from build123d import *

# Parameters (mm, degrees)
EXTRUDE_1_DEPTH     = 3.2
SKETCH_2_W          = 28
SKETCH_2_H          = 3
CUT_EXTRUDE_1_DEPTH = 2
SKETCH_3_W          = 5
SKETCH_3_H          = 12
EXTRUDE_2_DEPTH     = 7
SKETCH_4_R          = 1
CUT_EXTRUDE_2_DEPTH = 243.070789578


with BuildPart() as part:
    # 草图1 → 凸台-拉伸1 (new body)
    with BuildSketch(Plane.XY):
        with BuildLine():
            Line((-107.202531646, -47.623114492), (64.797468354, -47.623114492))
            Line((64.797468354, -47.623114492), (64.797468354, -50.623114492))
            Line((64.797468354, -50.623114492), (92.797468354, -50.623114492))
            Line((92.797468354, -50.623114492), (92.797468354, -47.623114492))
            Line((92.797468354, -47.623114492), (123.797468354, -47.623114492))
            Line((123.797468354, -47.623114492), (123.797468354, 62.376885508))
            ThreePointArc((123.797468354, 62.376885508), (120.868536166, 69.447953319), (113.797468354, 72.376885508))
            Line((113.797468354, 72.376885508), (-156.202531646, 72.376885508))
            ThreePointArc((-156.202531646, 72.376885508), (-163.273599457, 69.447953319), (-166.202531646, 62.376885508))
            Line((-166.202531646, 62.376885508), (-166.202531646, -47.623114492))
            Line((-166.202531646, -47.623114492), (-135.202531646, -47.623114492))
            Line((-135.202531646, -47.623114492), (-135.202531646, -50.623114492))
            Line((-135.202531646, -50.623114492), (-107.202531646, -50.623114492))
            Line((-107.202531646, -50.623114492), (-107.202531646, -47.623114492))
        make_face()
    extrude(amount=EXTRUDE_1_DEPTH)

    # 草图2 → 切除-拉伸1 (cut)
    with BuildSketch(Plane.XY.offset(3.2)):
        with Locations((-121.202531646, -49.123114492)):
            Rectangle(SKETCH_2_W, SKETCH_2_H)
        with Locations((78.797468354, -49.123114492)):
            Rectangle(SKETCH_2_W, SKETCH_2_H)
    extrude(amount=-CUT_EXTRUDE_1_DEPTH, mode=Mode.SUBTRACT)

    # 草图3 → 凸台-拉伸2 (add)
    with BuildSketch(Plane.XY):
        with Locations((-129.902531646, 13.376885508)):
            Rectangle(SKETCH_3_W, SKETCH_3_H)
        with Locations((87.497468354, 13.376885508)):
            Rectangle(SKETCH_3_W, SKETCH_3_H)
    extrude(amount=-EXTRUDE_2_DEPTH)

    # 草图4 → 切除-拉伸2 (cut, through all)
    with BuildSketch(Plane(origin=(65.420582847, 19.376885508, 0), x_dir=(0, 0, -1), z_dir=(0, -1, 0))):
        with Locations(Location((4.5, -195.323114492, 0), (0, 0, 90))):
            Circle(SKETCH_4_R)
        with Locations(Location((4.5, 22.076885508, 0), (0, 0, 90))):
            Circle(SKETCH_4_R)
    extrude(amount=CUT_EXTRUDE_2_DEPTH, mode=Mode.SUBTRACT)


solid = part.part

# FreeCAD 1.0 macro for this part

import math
import FreeCAD as App
import Part
import Sketcher

V = App.Vector
Q = App.Units.Quantity

doc = App.newDocument("Part")
body = doc.addObject("PartDesign::Body", "Body")

# Sketch on XY plane
sketch1 = body.newObject("Sketcher::SketchObject", "Sketch")
sketch1.AttachmentSupport = (doc.getObject("XY_Plane"), [""])
sketch1.MapMode = "FlatFace"
sketch1.addGeometry([
    Part.LineSegment(V(-107.2, -47.6, 0), V(64.8, -47.6, 0)),  # 0
    Part.LineSegment(V(64.8, -47.6, 0), V(64.8, -50.6, 0)),  # 1
    Part.LineSegment(V(64.8, -50.6, 0), V(92.8, -50.6, 0)),  # 2
    Part.LineSegment(V(92.8, -50.6, 0), V(92.8, -47.6, 0)),  # 3
    Part.LineSegment(V(92.8, -47.6, 0), V(123.8, -47.6, 0)),  # 4
    Part.LineSegment(V(123.8, -47.6, 0), V(123.8, 62.4, 0)),  # 5
    Part.ArcOfCircle(Part.Circle(V(113.8, 62.4, 0), V(0, 0, 1), 10), math.radians(0), math.radians(90)),  # 6
    Part.LineSegment(V(113.8, 72.4, 0), V(-156.2, 72.4, 0)),  # 7
    Part.ArcOfCircle(Part.Circle(V(-156.2, 62.4, 0), V(0, 0, 1), 10), math.radians(90), math.radians(180)),  # 8
    Part.LineSegment(V(-166.2, 62.4, 0), V(-166.2, -47.6, 0)),  # 9
    Part.LineSegment(V(-166.2, -47.6, 0), V(-135.2, -47.6, 0)),  # 10
    Part.LineSegment(V(-135.2, -47.6, 0), V(-135.2, -50.6, 0)),  # 11
    Part.LineSegment(V(-135.2, -50.6, 0), V(-107.2, -50.6, 0)),  # 12
    Part.LineSegment(V(-107.2, -50.6, 0), V(-107.2, -47.6, 0)),  # 13
], False)
sketch1.addConstraint([
    Sketcher.Constraint("Coincident", 0, 2, 1, 1),
    Sketcher.Constraint("Coincident", 1, 2, 2, 1),
    Sketcher.Constraint("Coincident", 2, 2, 3, 1),
    Sketcher.Constraint("Coincident", 3, 2, 4, 1),
    Sketcher.Constraint("Coincident", 4, 2, 5, 1),
    Sketcher.Constraint("Tangent", 5, 2, 6, 1),
    Sketcher.Constraint("Tangent", 6, 2, 7, 1),
    Sketcher.Constraint("Tangent", 7, 2, 8, 1),
    Sketcher.Constraint("Tangent", 8, 2, 9, 1),
    Sketcher.Constraint("Coincident", 9, 2, 10, 1),
    Sketcher.Constraint("Coincident", 10, 2, 11, 1),
    Sketcher.Constraint("Coincident", 11, 2, 12, 1),
    Sketcher.Constraint("Coincident", 12, 2, 13, 1),
    Sketcher.Constraint("Coincident", 13, 2, 0, 1),
    Sketcher.Constraint("Horizontal", 0),
    Sketcher.Constraint("Vertical", 1),
    Sketcher.Constraint("Horizontal", 2),
    Sketcher.Constraint("Vertical", 3),
    Sketcher.Constraint("Horizontal", 4),
    Sketcher.Constraint("Vertical", 5),
    Sketcher.Constraint("Horizontal", 7),
    Sketcher.Constraint("Vertical", 9),
    Sketcher.Constraint("Horizontal", 10),
    Sketcher.Constraint("Vertical", 11),
    Sketcher.Constraint("Horizontal", 12),
    Sketcher.Constraint("Vertical", 13),
    Sketcher.Constraint("Equal", 6, 8),
    Sketcher.Constraint("Horizontal", 0, 2, 3, 2),
    Sketcher.Constraint("Horizontal", 4, 2, 9, 2),
    Sketcher.Constraint("Horizontal", 2, 2, 11, 2),
    Sketcher.Constraint("Equal", 4, 10),
    Sketcher.Constraint("Equal", 2, 12),
    Sketcher.Constraint("Radius", 6, Q("10 mm")),
    Sketcher.Constraint("DistanceX", 0, 1, 0, 2, Q("172 mm")),
    Sketcher.Constraint("DistanceX", 2, 1, 2, 2, Q("28 mm")),
    Sketcher.Constraint("DistanceX", 4, 1, 4, 2, Q("31 mm")),
    Sketcher.Constraint("DistanceY", 1, 2, 1, 1, Q("3 mm")),
    Sketcher.Constraint("DistanceY", 5, 1, 5, 2, Q("110 mm")),
    Sketcher.Constraint("DistanceX", -1, 1, 6, 3, Q("113.797468 mm")),
    Sketcher.Constraint("DistanceY", -1, 1, 6, 3, Q("62.376886 mm")),
])
pad1 = body.newObject("PartDesign::Pad", "Pad")
pad1.Profile = sketch1
pad1.Length = 3.2

# Sketch on XY plane
sketch2 = body.newObject("Sketcher::SketchObject", "Sketch001")
sketch2.AttachmentSupport = (doc.getObject("XY_Plane"), [""])
sketch2.MapMode = "FlatFace"
sketch2.AttachmentOffset = App.Placement(V(0, 0, 3.2), App.Rotation())
sketch2.addGeometry([
    Part.LineSegment(V(-135.2, -47.6, 0), V(-135.2, -50.6, 0)),  # 0
    Part.LineSegment(V(-135.2, -50.6, 0), V(-107.2, -50.6, 0)),  # 1
    Part.LineSegment(V(-107.2, -50.6, 0), V(-107.2, -47.6, 0)),  # 2
    Part.LineSegment(V(-107.2, -47.6, 0), V(-135.2, -47.6, 0)),  # 3
    Part.LineSegment(V(64.8, -47.6, 0), V(64.8, -50.6, 0)),  # 4
    Part.LineSegment(V(64.8, -50.6, 0), V(92.8, -50.6, 0)),  # 5
    Part.LineSegment(V(92.8, -50.6, 0), V(92.8, -47.6, 0)),  # 6
    Part.LineSegment(V(92.8, -47.6, 0), V(64.8, -47.6, 0)),  # 7
], False)
sketch2.addConstraint([
    Sketcher.Constraint("Coincident", 0, 2, 1, 1),
    Sketcher.Constraint("Coincident", 1, 2, 2, 1),
    Sketcher.Constraint("Coincident", 2, 2, 3, 1),
    Sketcher.Constraint("Coincident", 3, 2, 0, 1),
    Sketcher.Constraint("Coincident", 4, 2, 5, 1),
    Sketcher.Constraint("Coincident", 5, 2, 6, 1),
    Sketcher.Constraint("Coincident", 6, 2, 7, 1),
    Sketcher.Constraint("Coincident", 7, 2, 4, 1),
    Sketcher.Constraint("Vertical", 0),
    Sketcher.Constraint("Horizontal", 1),
    Sketcher.Constraint("Vertical", 2),
    Sketcher.Constraint("Horizontal", 3),
    Sketcher.Constraint("Vertical", 4),
    Sketcher.Constraint("Horizontal", 5),
    Sketcher.Constraint("Vertical", 6),
    Sketcher.Constraint("Horizontal", 7),
    Sketcher.Constraint("Horizontal", 1, 2, 4, 2),
    Sketcher.Constraint("Horizontal", 3, 2, 6, 2),
    Sketcher.Constraint("Equal", 3, 5),
    Sketcher.Constraint("DistanceX", 1, 1, 1, 2, Q("28 mm")),
    Sketcher.Constraint("DistanceY", 0, 2, 0, 1, Q("3 mm")),
    Sketcher.Constraint("DistanceX", 1, 2, 4, 2, Q("172 mm")),
    Sketcher.Constraint("DistanceX", 0, 2, -1, 1, Q("135.202532 mm")),
    Sketcher.Constraint("DistanceY", 0, 2, -1, 1, Q("50.623114 mm")),
])
pocket1 = body.newObject("PartDesign::Pocket", "Pocket")
pocket1.Profile = sketch2
pocket1.Length = 2

# Sketch on XY plane
sketch3 = body.newObject("Sketcher::SketchObject", "Sketch002")
sketch3.AttachmentSupport = (doc.getObject("XY_Plane"), [""])
sketch3.MapMode = "FlatFace"
sketch3.addGeometry([
    Part.LineSegment(V(-132, 19, 0), V(-132, 7, 0)),  # 0
    Part.LineSegment(V(-132, 7, 0), V(-127, 7, 0)),  # 1
    Part.LineSegment(V(-127, 7, 0), V(-127, 19, 0)),  # 2
    Part.LineSegment(V(-127, 19, 0), V(-132, 19, 0)),  # 3
    Part.LineSegment(V(85, 19, 0), V(85, 7, 0)),  # 4
    Part.LineSegment(V(85, 7, 0), V(90, 7, 0)),  # 5
    Part.LineSegment(V(90, 7, 0), V(90, 19, 0)),  # 6
    Part.LineSegment(V(90, 19, 0), V(85, 19, 0)),  # 7
], False)
sketch3.addConstraint([
    Sketcher.Constraint("Coincident", 0, 2, 1, 1),
    Sketcher.Constraint("Coincident", 1, 2, 2, 1),
    Sketcher.Constraint("Coincident", 2, 2, 3, 1),
    Sketcher.Constraint("Coincident", 3, 2, 0, 1),
    Sketcher.Constraint("Coincident", 4, 2, 5, 1),
    Sketcher.Constraint("Coincident", 5, 2, 6, 1),
    Sketcher.Constraint("Coincident", 6, 2, 7, 1),
    Sketcher.Constraint("Coincident", 7, 2, 4, 1),
    Sketcher.Constraint("Vertical", 0),
    Sketcher.Constraint("Horizontal", 1),
    Sketcher.Constraint("Vertical", 2),
    Sketcher.Constraint("Horizontal", 3),
    Sketcher.Constraint("Vertical", 4),
    Sketcher.Constraint("Horizontal", 5),
    Sketcher.Constraint("Vertical", 6),
    Sketcher.Constraint("Horizontal", 7),
    Sketcher.Constraint("Horizontal", 1, 2, 4, 2),
    Sketcher.Constraint("Horizontal", 3, 2, 6, 2),
    Sketcher.Constraint("Equal", 3, 5),
    Sketcher.Constraint("DistanceX", 1, 1, 1, 2, Q("5 mm")),
    Sketcher.Constraint("DistanceY", 0, 2, 0, 1, Q("12 mm")),
    Sketcher.Constraint("DistanceX", 1, 2, 4, 2, Q("212.4 mm")),
    Sketcher.Constraint("DistanceX", 0, 2, -1, 1, Q("132.402532 mm")),
    Sketcher.Constraint("DistanceY", -1, 1, 0, 2, Q("7.376886 mm")),
])
pad2 = body.newObject("PartDesign::Pad", "Pad001")
pad2.Profile = sketch3
pad2.Length = 7
pad2.Reversed = True

# Sketch on XZ plane
sketch4 = body.newObject("Sketcher::SketchObject", "Sketch003")
sketch4.AttachmentSupport = (doc.getObject("XZ_Plane"), [""])
sketch4.MapMode = "FlatFace"
sketch4.AttachmentOffset = App.Placement(V(0, 0, -19.376886), App.Rotation())
sketch4.addGeometry([
    Part.Circle(V(-129.9, -4.5, 0), V(0, 0, 1), 1),
    Part.Circle(V(87.5, -4.5, 0), V(0, 0, 1), 1),
], False)
sketch4.addConstraint([
    Sketcher.Constraint("Equal", 0, 1),
    Sketcher.Constraint("Horizontal", 0, 3, 1, 3),
    Sketcher.Constraint("Diameter", 0, Q("2 mm")),
    Sketcher.Constraint("DistanceY", 0, 3, -1, 1, Q("4.5 mm")),
    Sketcher.Constraint("DistanceX", 0, 3, 1, 3, Q("217.4 mm")),
    Sketcher.Constraint("DistanceX", 0, 3, -1, 1, Q("129.902532 mm")),
])
pocket2 = body.newObject("PartDesign::Pocket", "Pocket001")
pocket2.Profile = sketch4
pocket2.Type = "ThroughAll"
pocket2.Reversed = True

doc.recompute()
